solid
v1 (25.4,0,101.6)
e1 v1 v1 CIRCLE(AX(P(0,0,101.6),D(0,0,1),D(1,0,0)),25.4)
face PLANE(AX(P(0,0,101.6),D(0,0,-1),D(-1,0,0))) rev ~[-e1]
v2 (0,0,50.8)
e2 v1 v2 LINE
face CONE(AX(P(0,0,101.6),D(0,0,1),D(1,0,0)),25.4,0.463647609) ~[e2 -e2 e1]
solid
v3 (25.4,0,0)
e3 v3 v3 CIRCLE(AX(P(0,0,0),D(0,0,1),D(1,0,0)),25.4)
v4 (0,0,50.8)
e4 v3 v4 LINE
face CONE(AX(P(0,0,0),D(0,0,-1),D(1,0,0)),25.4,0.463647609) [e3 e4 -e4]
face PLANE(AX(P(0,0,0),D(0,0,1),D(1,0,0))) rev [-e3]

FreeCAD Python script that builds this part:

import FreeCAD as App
import Part
import Sketcher
from FreeCAD import Vector
Q = App.Units.Quantity

doc = App.newDocument("Part")
body = doc.addObject("PartDesign::Body", "Body")

# Sketch on XZ plane
sketch1 = doc.addObject("Sketcher::SketchObject", "Sketch")
body.addObject(sketch1)
sketch1.AttachmentSupport = (doc.XZ_Plane, [""])
sketch1.MapMode = "FlatFace"
sketch1.addGeometry(Part.LineSegment(Vector(0, 51, 0), Vector(0, 0, 0)), False)
sketch1.addGeometry(Part.LineSegment(Vector(0, 0, 0), Vector(25, 0, 0)), False)
sketch1.addGeometry(Part.LineSegment(Vector(25, 0, 0), Vector(0, 51, 0)), False)
sketch1.addConstraint(Sketcher.Constraint("Coincident", 0, 2, 1, 1))
sketch1.addConstraint(Sketcher.Constraint("Coincident", 1, 2, 2, 1))
sketch1.addConstraint(Sketcher.Constraint("Coincident", 2, 2, 0, 1))
sketch1.addConstraint(Sketcher.Constraint("Vertical", 0))
sketch1.addConstraint(Sketcher.Constraint("Horizontal", 1))
sketch1.addConstraint(Sketcher.Constraint("Coincident", 0, 2, -1, 1))
sketch1.addConstraint(Sketcher.Constraint("DistanceX", 1, 1, 1, 2, Q("1 in")))
sketch1.addConstraint(Sketcher.Constraint("DistanceY", 0, 2, 0, 1, Q("2 in")))
revolution = doc.addObject("PartDesign::Revolution", "Revolution")
body.addObject(revolution)
revolution.Profile = sketch1
revolution.ReferenceAxis = (sketch1, ["V_Axis"])
revolution.Angle = 360
body2 = doc.addObject("PartDesign::Body", "Body001")
doc.recompute()

mirroring = doc.addObject("Part::Mirroring", "Mirroring")
mirroring.Source = body
mirroring.Base = Vector(0, 0, 50.8)
mirroring.Normal = Vector(0, 0, 1)
body2.BaseFeature = mirroring
doc.recompute()
mirroring.Visibility = False

doc.recompute()
